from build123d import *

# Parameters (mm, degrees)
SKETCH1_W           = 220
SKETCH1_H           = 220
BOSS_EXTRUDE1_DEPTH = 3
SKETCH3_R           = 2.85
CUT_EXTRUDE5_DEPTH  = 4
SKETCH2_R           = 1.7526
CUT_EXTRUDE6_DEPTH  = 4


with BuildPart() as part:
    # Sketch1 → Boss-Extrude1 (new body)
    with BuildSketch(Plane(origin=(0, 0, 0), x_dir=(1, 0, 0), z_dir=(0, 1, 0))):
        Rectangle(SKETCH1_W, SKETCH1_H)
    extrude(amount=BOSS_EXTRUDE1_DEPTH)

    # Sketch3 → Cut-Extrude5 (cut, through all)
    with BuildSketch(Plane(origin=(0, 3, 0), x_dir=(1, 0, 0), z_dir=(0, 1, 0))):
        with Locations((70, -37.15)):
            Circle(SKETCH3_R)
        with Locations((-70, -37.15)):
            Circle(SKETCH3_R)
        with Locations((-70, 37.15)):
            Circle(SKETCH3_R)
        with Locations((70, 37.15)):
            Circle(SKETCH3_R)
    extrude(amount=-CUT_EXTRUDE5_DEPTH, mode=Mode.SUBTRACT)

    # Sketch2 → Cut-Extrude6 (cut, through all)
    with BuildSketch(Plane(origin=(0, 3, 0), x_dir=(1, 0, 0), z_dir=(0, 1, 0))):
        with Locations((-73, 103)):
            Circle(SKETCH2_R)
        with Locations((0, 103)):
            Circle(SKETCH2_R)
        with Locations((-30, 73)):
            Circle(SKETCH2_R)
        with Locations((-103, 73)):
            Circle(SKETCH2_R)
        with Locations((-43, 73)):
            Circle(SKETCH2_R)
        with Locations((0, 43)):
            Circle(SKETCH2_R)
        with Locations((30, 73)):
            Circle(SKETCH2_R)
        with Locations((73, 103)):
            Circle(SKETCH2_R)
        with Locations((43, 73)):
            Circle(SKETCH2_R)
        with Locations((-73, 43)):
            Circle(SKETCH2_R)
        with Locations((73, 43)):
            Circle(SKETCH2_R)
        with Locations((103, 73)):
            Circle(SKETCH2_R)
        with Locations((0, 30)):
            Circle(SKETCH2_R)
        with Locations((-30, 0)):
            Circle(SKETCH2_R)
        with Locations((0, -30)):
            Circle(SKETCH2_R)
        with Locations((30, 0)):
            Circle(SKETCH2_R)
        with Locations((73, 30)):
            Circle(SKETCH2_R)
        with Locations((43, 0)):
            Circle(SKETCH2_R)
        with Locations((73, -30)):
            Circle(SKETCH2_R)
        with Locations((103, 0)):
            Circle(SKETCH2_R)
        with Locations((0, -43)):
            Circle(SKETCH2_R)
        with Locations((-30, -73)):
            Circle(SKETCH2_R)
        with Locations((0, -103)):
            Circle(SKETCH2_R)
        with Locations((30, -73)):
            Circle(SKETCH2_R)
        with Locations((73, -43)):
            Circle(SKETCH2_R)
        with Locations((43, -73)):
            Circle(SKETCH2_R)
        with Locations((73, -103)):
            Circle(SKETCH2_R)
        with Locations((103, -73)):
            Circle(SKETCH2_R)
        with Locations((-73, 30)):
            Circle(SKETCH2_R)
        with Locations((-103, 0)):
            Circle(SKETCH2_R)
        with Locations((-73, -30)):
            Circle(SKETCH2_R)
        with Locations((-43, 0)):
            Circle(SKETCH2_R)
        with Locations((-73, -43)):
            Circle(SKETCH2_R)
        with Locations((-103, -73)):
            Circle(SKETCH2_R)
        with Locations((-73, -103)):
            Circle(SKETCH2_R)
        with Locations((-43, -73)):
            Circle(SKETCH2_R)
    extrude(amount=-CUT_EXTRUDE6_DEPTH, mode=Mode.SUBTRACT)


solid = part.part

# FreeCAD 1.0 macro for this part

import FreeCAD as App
import Part
import Sketcher
Q = App.Units.Quantity

doc = App.newDocument("Part")
body = doc.addObject("PartDesign::Body", "Body")

# Sketch on XZ plane
sketch1 = body.newObject("Sketcher::SketchObject", "Sketch")
sketch1.AttachmentSupport = (doc.getObject("XZ_Plane"), [""])
sketch1.MapMode = "FlatFace"
sketch1.addGeometry([
    Part.LineSegment(App.Vector(-110, -110, 0), App.Vector(-110, 110, 0)),
    Part.LineSegment(App.Vector(-110, 110, 0), App.Vector(110, 110, 0)),
    Part.LineSegment(App.Vector(110, 110, 0), App.Vector(110, -110, 0)),
    Part.LineSegment(App.Vector(110, -110, 0), App.Vector(-110, -110, 0)),
], False)
sketch1.addConstraint([
    Sketcher.Constraint("Coincident", 0, 2, 1, 1),
    Sketcher.Constraint("Coincident", 1, 2, 2, 1),
    Sketcher.Constraint("Coincident", 2, 2, 3, 1),
    Sketcher.Constraint("Coincident", 3, 2, 0, 1),
    Sketcher.Constraint("Vertical", 0),
    Sketcher.Constraint("Horizontal", 1),
    Sketcher.Constraint("Vertical", 2),
    Sketcher.Constraint("Horizontal", 3),
    Sketcher.Constraint("Symmetric", 0, 2, 2, 2, -1, 1),
    Sketcher.Constraint("Equal", 3, 0),
    Sketcher.Constraint("DistanceX", 1, 1, 1, 2, Q("220 mm")),
])
pad1 = body.newObject("PartDesign::Pad", "Pad")
pad1.Profile = sketch1
pad1.Length = 3
pad1.Reversed = True

# Sketch on XZ plane
sketch2 = body.newObject("Sketcher::SketchObject", "Sketch001")
sketch2.AttachmentSupport = (doc.getObject("XZ_Plane"), [""])
sketch2.MapMode = "FlatFace"
sketch2.AttachmentOffset = App.Placement(App.Vector(0, 0, -3), App.Rotation())
sketch2.addGeometry([
    Part.Circle(App.Vector(70, 37.15, 0), App.Vector(0, 0, 1), 2.85),
    Part.Circle(App.Vector(-70, 37.15, 0), App.Vector(0, 0, 1), 2.85),
    Part.Circle(App.Vector(-70, -37.15, 0), App.Vector(0, 0, 1), 2.85),
    Part.Circle(App.Vector(70, -37.15, 0), App.Vector(0, 0, 1), 2.85),
], False)
sketch2.addConstraint([
    Sketcher.Constraint("Equal", 0, 1),
    Sketcher.Constraint("Equal", 1, 2),
    Sketcher.Constraint("Equal", 2, 3),
    Sketcher.Constraint("Symmetric", 0, 3, 2, 3, -1, 1),
    Sketcher.Constraint("Symmetric", 1, 3, 3, 3, -1, 1),
    Sketcher.Constraint("Symmetric", 0, 3, 1, 3, -2),
    Sketcher.Constraint("Diameter", 0, Q("5.7 mm")),
    Sketcher.Constraint("DistanceX", -1, 1, 0, 3, Q("70 mm")),
    Sketcher.Constraint("DistanceY", 2, 3, 1, 3, Q("74.3 mm")),
])
pocket1 = body.newObject("PartDesign::Pocket", "Pocket")
pocket1.Profile = sketch2
pocket1.Type = "ThroughAll"
pocket1.Reversed = True

# Sketch on XZ plane
sketch3 = body.newObject("Sketcher::SketchObject", "Sketch002")
sketch3.AttachmentSupport = (doc.getObject("XZ_Plane"), [""])
sketch3.MapMode = "FlatFace"
sketch3.AttachmentOffset = App.Placement(App.Vector(0, 0, -3), App.Rotation())
sketch3.addGeometry([
    Part.Circle(App.Vector(-73, -103, 0), App.Vector(0, 0, 1), 1.7526),  # 0
    Part.Circle(App.Vector(0, -103, 0), App.Vector(0, 0, 1), 1.7526),  # 1
    Part.Circle(App.Vector(-30, -73, 0), App.Vector(0, 0, 1), 1.7526),  # 2
    Part.Circle(App.Vector(-103, -73, 0), App.Vector(0, 0, 1), 1.7526),  # 3
    Part.Circle(App.Vector(-43, -73, 0), App.Vector(0, 0, 1), 1.7526),  # 4
    Part.Circle(App.Vector(0, -43, 0), App.Vector(0, 0, 1), 1.7526),  # 5
    Part.Circle(App.Vector(30, -73, 0), App.Vector(0, 0, 1), 1.7526),  # 6
    Part.Circle(App.Vector(73, -103, 0), App.Vector(0, 0, 1), 1.7526),  # 7
    Part.Circle(App.Vector(43, -73, 0), App.Vector(0, 0, 1), 1.7526),  # 8
    Part.Circle(App.Vector(-73, -43, 0), App.Vector(0, 0, 1), 1.7526),  # 9
    Part.Circle(App.Vector(73, -43, 0), App.Vector(0, 0, 1), 1.7526),  # 10
    Part.Circle(App.Vector(103, -73, 0), App.Vector(0, 0, 1), 1.7526),  # 11
    Part.Circle(App.Vector(0, -30, 0), App.Vector(0, 0, 1), 1.7526),  # 12
    Part.Circle(App.Vector(-30, 0, 0), App.Vector(0, 0, 1), 1.7526),  # 13
    Part.Circle(App.Vector(0, 30, 0), App.Vector(0, 0, 1), 1.7526),  # 14
    Part.Circle(App.Vector(30, 0, 0), App.Vector(0, 0, 1), 1.7526),  # 15
    Part.Circle(App.Vector(73, -30, 0), App.Vector(0, 0, 1), 1.7526),  # 16
    Part.Circle(App.Vector(43, 0, 0), App.Vector(0, 0, 1), 1.7526),  # 17
    Part.Circle(App.Vector(73, 30, 0), App.Vector(0, 0, 1), 1.7526),  # 18
    Part.Circle(App.Vector(103, 0, 0), App.Vector(0, 0, 1), 1.7526),  # 19
    Part.Circle(App.Vector(0, 43, 0), App.Vector(0, 0, 1), 1.7526),  # 20
    Part.Circle(App.Vector(-30, 73, 0), App.Vector(0, 0, 1), 1.7526),  # 21
    Part.Circle(App.Vector(0, 103, 0), App.Vector(0, 0, 1), 1.7526),  # 22
    Part.Circle(App.Vector(30, 73, 0), App.Vector(0, 0, 1), 1.7526),  # 23
    Part.Circle(App.Vector(73, 43, 0), App.Vector(0, 0, 1), 1.7526),  # 24
    Part.Circle(App.Vector(43, 73, 0), App.Vector(0, 0, 1), 1.7526),  # 25
    Part.Circle(App.Vector(73, 103, 0), App.Vector(0, 0, 1), 1.7526),  # 26
    Part.Circle(App.Vector(103, 73, 0), App.Vector(0, 0, 1), 1.7526),  # 27
    Part.Circle(App.Vector(-73, -30, 0), App.Vector(0, 0, 1), 1.7526),  # 28
    Part.Circle(App.Vector(-103, 0, 0), App.Vector(0, 0, 1), 1.7526),  # 29
    Part.Circle(App.Vector(-73, 30, 0), App.Vector(0, 0, 1), 1.7526),  # 30
    Part.Circle(App.Vector(-43, 0, 0), App.Vector(0, 0, 1), 1.7526),  # 31
    Part.Circle(App.Vector(-73, 43, 0), App.Vector(0, 0, 1), 1.7526),  # 32
    Part.Circle(App.Vector(-103, 73, 0), App.Vector(0, 0, 1), 1.7526),  # 33
    Part.Circle(App.Vector(-73, 103, 0), App.Vector(0, 0, 1), 1.7526),  # 34
    Part.Circle(App.Vector(-43, 73, 0), App.Vector(0, 0, 1), 1.7526),  # 35
], False)
sketch3.addConstraint([
    Sketcher.Constraint("Equal", 0, 1),
    Sketcher.Constraint("Equal", 1, 2),
    Sketcher.Constraint("Equal", 2, 3),
    Sketcher.Constraint("Equal", 3, 4),
    Sketcher.Constraint("Equal", 4, 5),
    Sketcher.Constraint("Equal", 5, 6),
    Sketcher.Constraint("Equal", 6, 7),
    Sketcher.Constraint("Equal", 7, 8),
    Sketcher.Constraint("Equal", 8, 9),
    Sketcher.Constraint("Equal", 9, 10),
    Sketcher.Constraint("Equal", 10, 11),
    Sketcher.Constraint("Equal", 11, 12),
    Sketcher.Constraint("Equal", 12, 13),
    Sketcher.Constraint("Equal", 13, 14),
    Sketcher.Constraint("Equal", 14, 15),
    Sketcher.Constraint("Equal", 15, 16),
    Sketcher.Constraint("Equal", 16, 17),
    Sketcher.Constraint("Equal", 17, 18),
    Sketcher.Constraint("Equal", 18, 19),
    Sketcher.Constraint("Equal", 19, 20),
    Sketcher.Constraint("Equal", 20, 21),
    Sketcher.Constraint("Equal", 21, 22),
    Sketcher.Constraint("Equal", 22, 23),
    Sketcher.Constraint("Equal", 23, 24),
    Sketcher.Constraint("Equal", 24, 25),
    Sketcher.Constraint("Equal", 25, 26),
    Sketcher.Constraint("Equal", 26, 27),
    Sketcher.Constraint("Equal", 27, 28),
    Sketcher.Constraint("Equal", 28, 29),
    Sketcher.Constraint("Equal", 29, 30),
    Sketcher.Constraint("Equal", 30, 31),
    Sketcher.Constraint("Equal", 31, 32),
    Sketcher.Constraint("Equal", 32, 33),
    Sketcher.Constraint("Equal", 33, 34),
    Sketcher.Constraint("Equal", 34, 35),
    Sketcher.Constraint("Symmetric", 12, 3, 14, 3, -1, 1),
    Sketcher.Constraint("Symmetric", 13, 3, 15, 3, -1, 1),
    Sketcher.Constraint("Symmetric", 5, 3, 20, 3, -1, 1),
    Sketcher.Constraint("Symmetric", 6, 3, 21, 3, -1, 1),
    Sketcher.Constraint("Symmetric", 1, 3, 22, 3, -1, 1),
    Sketcher.Constraint("Symmetric", 2, 3, 23, 3, -1, 1),
    Sketcher.Constraint("Symmetric", 9, 3, 24, 3, -1, 1),
    Sketcher.Constraint("Symmetric", 4, 3, 25, 3, -1, 1),
    Sketcher.Constraint("Symmetric", 0, 3, 26, 3, -1, 1),
    Sketcher.Constraint("Symmetric", 3, 3, 27, 3, -1, 1),
    Sketcher.Constraint("Symmetric", 18, 3, 28, 3, -1, 1),
    Sketcher.Constraint("Symmetric", 19, 3, 29, 3, -1, 1),
    Sketcher.Constraint("Symmetric", 16, 3, 30, 3, -1, 1),
    Sketcher.Constraint("Symmetric", 17, 3, 31, 3, -1, 1),
    Sketcher.Constraint("Symmetric", 10, 3, 32, 3, -1, 1),
    Sketcher.Constraint("Symmetric", 11, 3, 33, 3, -1, 1),
    Sketcher.Constraint("Symmetric", 7, 3, 34, 3, -1, 1),
    Sketcher.Constraint("Symmetric", 8, 3, 35, 3, -1, 1),
    Sketcher.Constraint("Symmetric", 2, 3, 6, 3, -2),
    Sketcher.Constraint("Symmetric", 0, 3, 7, 3, -2),
    Sketcher.Constraint("Symmetric", 4, 3, 8, 3, -2),
    Sketcher.Constraint("Symmetric", 9, 3, 10, 3, -2),
    Sketcher.Constraint("Symmetric", 3, 3, 11, 3, -2),
    Sketcher.Constraint("Symmetric", 16, 3, 28, 3, -2),
    Sketcher.Constraint("PointOnObject", 1, 3, -2),
    Sketcher.Constraint("PointOnObject", 5, 3, -2),
    Sketcher.Constraint("PointOnObject", 12, 3, -2),
    Sketcher.Constraint("PointOnObject", 13, 3, -1),
    Sketcher.Constraint("PointOnObject", 17, 3, -1),
    Sketcher.Constraint("PointOnObject", 19, 3, -1),
    Sketcher.Constraint("Horizontal", 0, 3, 1, 3),
    Sketcher.Constraint("Horizontal", 2, 3, 3, 3),
    Sketcher.Constraint("Horizontal", 3, 3, 4, 3),
    Sketcher.Constraint("Horizontal", 5, 3, 9, 3),
    Sketcher.Constraint("Horizontal", 12, 3, 16, 3),
    Sketcher.Constraint("Vertical", 0, 3, 9, 3),
    Sketcher.Constraint("Vertical", 2, 3, 13, 3),
    Sketcher.Constraint("Vertical", 10, 3, 16, 3),
    Sketcher.Constraint("Vertical", 8, 3, 17, 3),
    Sketcher.Constraint("Vertical", 11, 3, 19, 3),
    Sketcher.Constraint("DistanceX", 0, 3, -1, 1, Q("73 mm")),
    Sketcher.Constraint("DistanceY", 0, 3, -1, 1, Q("103 mm")),
    Sketcher.Constraint("DistanceX", 2, 3, -1, 1, Q("30 mm")),
    Sketcher.Constraint("DistanceY", 2, 3, -1, 1, Q("73 mm")),
    Sketcher.Constraint("DistanceX", 3, 3, -1, 1, Q("103 mm")),
    Sketcher.Constraint("DistanceX", 4, 3, -1, 1, Q("43 mm")),
    Sketcher.Constraint("DistanceY", 5, 3, -1, 1, Q("43 mm")),
    Sketcher.Constraint("DistanceY", 12, 3, -1, 1, Q("30 mm")),
    Sketcher.Constraint("Diameter", 0, Q("3.5052 mm")),
])
pocket2 = body.newObject("PartDesign::Pocket", "Pocket001")
pocket2.Profile = sketch3
pocket2.Type = "ThroughAll"
pocket2.Reversed = True

doc.recompute()
